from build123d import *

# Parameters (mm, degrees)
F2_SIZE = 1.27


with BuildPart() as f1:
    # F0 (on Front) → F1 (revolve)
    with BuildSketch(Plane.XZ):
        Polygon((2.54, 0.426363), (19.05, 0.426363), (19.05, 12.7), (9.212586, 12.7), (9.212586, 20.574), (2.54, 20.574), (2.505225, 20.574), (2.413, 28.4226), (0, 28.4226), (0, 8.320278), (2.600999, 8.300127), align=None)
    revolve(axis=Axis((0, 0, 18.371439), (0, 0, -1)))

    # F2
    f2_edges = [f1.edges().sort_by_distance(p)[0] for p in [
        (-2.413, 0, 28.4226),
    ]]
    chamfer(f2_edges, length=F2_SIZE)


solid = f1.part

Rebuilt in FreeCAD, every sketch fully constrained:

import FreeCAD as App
import Part
import Sketcher
from FreeCAD import Vector
Q = App.Units.Quantity


def edges_at(feature, points):
    """Names of the edges that pass closest to the given points."""
    edges = feature.Shape.Edges
    near = lambda p: min(range(len(edges)), key=lambda i: edges[i].distToShape(Part.Vertex(*p))[0])
    return sorted({f"Edge{near(p) + 1}" for p in points})

doc = App.newDocument("Part")
body = doc.addObject("PartDesign::Body", "Body")

sketch1 = doc.addObject("Sketcher::SketchObject", "Sketch")
body.addObject(sketch1)
sketch1.AttachmentSupport = (doc.XZ_Plane, [""])
sketch1.MapMode = "FlatFace"
sketch1.addGeometry(Part.LineSegment(Vector(2.54, 0.426363, 0), Vector(19.05, 0.426363, 0)), False)
sketch1.addGeometry(Part.LineSegment(Vector(19.05, 0.426363, 0), Vector(19.05, 12.7, 0)), False)
sketch1.addGeometry(Part.LineSegment(Vector(19.05, 12.7, 0), Vector(9.212586, 12.7, 0)), False)
sketch1.addGeometry(Part.LineSegment(Vector(9.212586, 12.7, 0), Vector(9.212586, 20.574, 0)), False)
sketch1.addGeometry(Part.LineSegment(Vector(9.212586, 20.574, 0), Vector(2.505225, 20.574, 0)), False)
sketch1.addGeometry(Part.LineSegment(Vector(2.505225, 20.574, 0), Vector(2.413, 28.4226, 0)), False)
sketch1.addGeometry(Part.LineSegment(Vector(2.413, 28.4226, 0), Vector(0, 28.4226, 0)), False)
sketch1.addGeometry(Part.LineSegment(Vector(0, 28.4226, 0), Vector(0, 8.320278, 0)), False)
sketch1.addGeometry(Part.LineSegment(Vector(0, 8.320278, 0), Vector(2.600999, 8.300127, 0)), False)
sketch1.addGeometry(Part.LineSegment(Vector(2.600999, 8.300127, 0), Vector(2.54, 0.426363, 0)), False)
sketch1.addConstraint(Sketcher.Constraint("Coincident", 0, 2, 1, 1))
sketch1.addConstraint(Sketcher.Constraint("Coincident", 1, 2, 2, 1))
sketch1.addConstraint(Sketcher.Constraint("Coincident", 2, 2, 3, 1))
sketch1.addConstraint(Sketcher.Constraint("Coincident", 3, 2, 4, 1))
sketch1.addConstraint(Sketcher.Constraint("Coincident", 4, 2, 5, 1))
sketch1.addConstraint(Sketcher.Constraint("Coincident", 5, 2, 6, 1))
sketch1.addConstraint(Sketcher.Constraint("Coincident", 6, 2, 7, 1))
sketch1.addConstraint(Sketcher.Constraint("Coincident", 7, 2, 8, 1))
sketch1.addConstraint(Sketcher.Constraint("Coincident", 8, 2, 9, 1))
sketch1.addConstraint(Sketcher.Constraint("Coincident", 9, 2, 0, 1))
sketch1.addConstraint(Sketcher.Constraint("Horizontal", 0))
sketch1.addConstraint(Sketcher.Constraint("Vertical", 1))
sketch1.addConstraint(Sketcher.Constraint("Horizontal", 2))
sketch1.addConstraint(Sketcher.Constraint("Vertical", 3))
sketch1.addConstraint(Sketcher.Constraint("Horizontal", 4))
sketch1.addConstraint(Sketcher.Constraint("Horizontal", 6))
sketch1.addConstraint(Sketcher.Constraint("Vertical", 7))
sketch1.addConstraint(Sketcher.Constraint("PointOnObject", 6, 2, -2))
sketch1.addConstraint(Sketcher.Constraint("Perpendicular", 8, 9))
sketch1.addConstraint(Sketcher.Constraint("DistanceX", 0, 1, 0, 2, Q("0.65 in")))
sketch1.addConstraint(Sketcher.Constraint("DistanceY", 3, 1, 3, 2, Q("0.31 in")))
sketch1.addConstraint(Sketcher.Constraint("DistanceY", -1, 1, 1, 2, Q("0.5 in")))
sketch1.addConstraint(Sketcher.Constraint("DistanceX", -1, 1, 9, 2, Q("0.1 in")))
sketch1.addConstraint(Sketcher.Constraint("Distance", 9, Q("0.31 in")))
sketch1.addConstraint(Sketcher.Constraint("DistanceX", 6, 2, 6, 1, Q("0.095 in")))
sketch1.addConstraint(Sketcher.Constraint("DistanceY", -1, 1, 5, 2, Q("1.119 in")))
sketch1.addConstraint(Sketcher.Constraint("DistanceX", 4, 2, 4, 1, Q("6.707361 mm")))
sketch1.addConstraint(Sketcher.Constraint("DistanceX", -1, 1, 8, 2, Q("2.600999 mm")))
sketch1.addConstraint(Sketcher.Constraint("Distance", 5, Q("7.849142 mm")))
sketch1.addConstraint(Sketcher.Constraint("DistanceY", 1, 1, 1, 2, Q("12.273637 mm")))
revolution = doc.addObject("PartDesign::Revolution", "Revolution")
body.addObject(revolution)
revolution.Profile = sketch1
revolution.ReferenceAxis = (sketch1, ["V_Axis"])
revolution.Angle = 360
doc.recompute()

chamfer = doc.addObject("PartDesign::Chamfer", "Chamfer")
body.addObject(chamfer)
chamfer.Base = (revolution, edges_at(revolution, [(-2.413, 0, 28.423)]))
chamfer.Size = Q("0.05 in")

doc.recompute()
